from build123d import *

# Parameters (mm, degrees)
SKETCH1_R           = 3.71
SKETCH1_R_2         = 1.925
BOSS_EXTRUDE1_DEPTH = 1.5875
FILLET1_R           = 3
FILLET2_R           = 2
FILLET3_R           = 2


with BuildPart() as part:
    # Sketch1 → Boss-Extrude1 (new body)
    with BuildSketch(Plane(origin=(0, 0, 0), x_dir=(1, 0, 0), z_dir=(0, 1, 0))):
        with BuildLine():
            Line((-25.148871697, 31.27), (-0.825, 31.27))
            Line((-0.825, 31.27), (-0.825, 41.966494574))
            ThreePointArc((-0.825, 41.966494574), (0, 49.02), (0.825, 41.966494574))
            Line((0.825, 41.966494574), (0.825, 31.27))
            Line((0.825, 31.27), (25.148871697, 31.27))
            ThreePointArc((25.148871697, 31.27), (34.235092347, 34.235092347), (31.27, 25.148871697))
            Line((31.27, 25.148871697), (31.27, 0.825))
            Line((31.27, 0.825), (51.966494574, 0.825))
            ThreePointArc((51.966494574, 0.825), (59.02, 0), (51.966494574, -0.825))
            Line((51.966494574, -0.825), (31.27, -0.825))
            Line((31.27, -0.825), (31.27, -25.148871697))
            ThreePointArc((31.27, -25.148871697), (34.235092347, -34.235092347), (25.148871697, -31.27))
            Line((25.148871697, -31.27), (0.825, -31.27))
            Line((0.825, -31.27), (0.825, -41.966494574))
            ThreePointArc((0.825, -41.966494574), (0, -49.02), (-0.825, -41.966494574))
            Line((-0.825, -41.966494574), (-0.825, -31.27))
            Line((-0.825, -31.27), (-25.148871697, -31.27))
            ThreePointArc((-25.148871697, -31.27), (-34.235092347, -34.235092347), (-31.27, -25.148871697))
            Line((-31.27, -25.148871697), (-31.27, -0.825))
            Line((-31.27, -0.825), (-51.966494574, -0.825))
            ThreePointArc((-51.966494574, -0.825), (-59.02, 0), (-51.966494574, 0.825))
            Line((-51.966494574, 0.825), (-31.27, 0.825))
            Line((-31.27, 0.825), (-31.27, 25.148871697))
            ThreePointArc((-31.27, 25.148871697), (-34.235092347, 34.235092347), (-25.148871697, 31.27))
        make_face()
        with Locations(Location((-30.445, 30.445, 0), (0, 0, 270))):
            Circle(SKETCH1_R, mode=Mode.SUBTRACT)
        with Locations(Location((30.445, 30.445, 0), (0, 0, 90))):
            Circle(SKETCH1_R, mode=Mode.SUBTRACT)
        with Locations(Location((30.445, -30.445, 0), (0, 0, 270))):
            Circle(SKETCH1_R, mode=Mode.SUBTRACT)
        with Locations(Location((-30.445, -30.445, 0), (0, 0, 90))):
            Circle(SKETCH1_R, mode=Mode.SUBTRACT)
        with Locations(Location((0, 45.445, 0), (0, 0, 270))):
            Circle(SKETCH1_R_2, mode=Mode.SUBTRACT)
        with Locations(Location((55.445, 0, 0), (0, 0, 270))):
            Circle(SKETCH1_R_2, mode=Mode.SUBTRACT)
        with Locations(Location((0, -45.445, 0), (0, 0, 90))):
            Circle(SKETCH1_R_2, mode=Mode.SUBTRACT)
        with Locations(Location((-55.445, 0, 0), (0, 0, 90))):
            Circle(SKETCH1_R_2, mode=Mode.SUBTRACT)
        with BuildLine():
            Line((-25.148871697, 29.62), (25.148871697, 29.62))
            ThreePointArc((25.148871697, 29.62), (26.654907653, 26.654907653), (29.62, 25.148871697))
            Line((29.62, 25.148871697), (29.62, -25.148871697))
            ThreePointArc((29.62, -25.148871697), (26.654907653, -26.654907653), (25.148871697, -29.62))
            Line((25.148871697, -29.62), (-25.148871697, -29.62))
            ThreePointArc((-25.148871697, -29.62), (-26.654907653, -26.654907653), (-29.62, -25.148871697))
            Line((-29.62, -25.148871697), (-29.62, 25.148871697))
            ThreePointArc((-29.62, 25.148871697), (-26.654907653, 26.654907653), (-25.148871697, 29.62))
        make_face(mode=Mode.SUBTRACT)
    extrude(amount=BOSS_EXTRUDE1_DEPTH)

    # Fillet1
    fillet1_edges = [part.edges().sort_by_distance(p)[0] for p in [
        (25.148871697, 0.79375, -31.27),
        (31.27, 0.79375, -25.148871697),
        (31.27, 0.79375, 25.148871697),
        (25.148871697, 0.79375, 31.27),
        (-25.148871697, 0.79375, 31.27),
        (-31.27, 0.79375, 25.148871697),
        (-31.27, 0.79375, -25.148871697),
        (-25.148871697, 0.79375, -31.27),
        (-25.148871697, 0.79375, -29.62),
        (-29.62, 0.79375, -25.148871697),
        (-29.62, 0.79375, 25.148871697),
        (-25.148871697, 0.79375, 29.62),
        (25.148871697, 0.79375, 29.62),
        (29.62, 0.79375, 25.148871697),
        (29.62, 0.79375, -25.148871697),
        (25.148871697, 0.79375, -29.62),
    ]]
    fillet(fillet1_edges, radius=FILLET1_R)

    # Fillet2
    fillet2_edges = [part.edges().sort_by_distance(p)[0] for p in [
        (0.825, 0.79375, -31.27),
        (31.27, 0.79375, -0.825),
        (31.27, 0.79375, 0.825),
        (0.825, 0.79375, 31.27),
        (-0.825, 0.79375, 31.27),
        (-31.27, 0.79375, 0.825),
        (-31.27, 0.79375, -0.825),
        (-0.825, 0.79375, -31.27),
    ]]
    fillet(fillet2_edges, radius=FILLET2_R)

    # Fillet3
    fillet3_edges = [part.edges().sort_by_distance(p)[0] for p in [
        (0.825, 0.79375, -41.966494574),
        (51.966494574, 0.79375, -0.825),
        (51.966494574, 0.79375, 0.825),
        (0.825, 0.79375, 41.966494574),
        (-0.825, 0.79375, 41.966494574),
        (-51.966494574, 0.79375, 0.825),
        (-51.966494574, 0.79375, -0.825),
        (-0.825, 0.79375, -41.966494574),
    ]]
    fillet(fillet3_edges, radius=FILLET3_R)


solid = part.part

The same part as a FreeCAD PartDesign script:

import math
import FreeCAD as App
import Part
import Sketcher
from FreeCAD import Vector
Q = App.Units.Quantity


def edges_at(feature, points):
    """Names of the edges that pass closest to the given points."""
    edges = feature.Shape.Edges
    near = lambda p: min(range(len(edges)), key=lambda i: edges[i].distToShape(Part.Vertex(*p))[0])
    return sorted({f"Edge{near(p) + 1}" for p in points})

doc = App.newDocument("Part")
body = doc.addObject("PartDesign::Body", "Body")

sketch1 = body.newObject("Sketcher::SketchObject", "Sketch")
sketch1.AttachmentSupport = (doc.getObject("XZ_Plane"), [""])
sketch1.MapMode = "FlatFace"
sketch1.addGeometry(Part.LineSegment(Vector(-0.8, -31.3, 0), Vector(-25.1, -31.3, 0)), False)
sketch1.addGeometry(Part.ArcOfCircle(Part.Circle(Vector(-30.4, -30.4, 0), Vector(0, 0, 1), 5.4), math.radians(99), math.radians(351)), False)
sketch1.addGeometry(Part.LineSegment(Vector(-31.3, -25.1, 0), Vector(-31.3, -0.8, 0)), False)
sketch1.addGeometry(Part.LineSegment(Vector(-31.3, -0.8, 0), Vector(-52, -0.8, 0)), False)
sketch1.addGeometry(Part.ArcOfCircle(Part.Circle(Vector(-55.4, 0, 0), Vector(0, 0, 1), 3.6), math.radians(13), math.radians(347)), False)
sketch1.addGeometry(Part.LineSegment(Vector(-52, 0.8, 0), Vector(-31.3, 0.8, 0)), False)
sketch1.addGeometry(Part.LineSegment(Vector(-31.3, 0.8, 0), Vector(-31.3, 25.1, 0)), False)
sketch1.addGeometry(Part.ArcOfCircle(Part.Circle(Vector(-30.4, 30.4, 0), Vector(0, 0, 1), 5.4), math.radians(9), math.radians(261)), False)
sketch1.addGeometry(Part.LineSegment(Vector(-25.1, 31.3, 0), Vector(-0.8, 31.3, 0)), False)
sketch1.addGeometry(Part.LineSegment(Vector(-0.8, 31.3, 0), Vector(-0.8, 42, 0)), False)
sketch1.addGeometry(Part.ArcOfCircle(Part.Circle(Vector(0, 45.4, 0), Vector(0, 0, 1), 3.6), math.radians(-77), math.radians(257)), False)
sketch1.addGeometry(Part.LineSegment(Vector(0.8, 42, 0), Vector(0.8, 31.3, 0)), False)
sketch1.addGeometry(Part.LineSegment(Vector(0.8, 31.3, 0), Vector(25.1, 31.3, 0)), False)
sketch1.addGeometry(Part.ArcOfCircle(Part.Circle(Vector(30.4, 30.4, 0), Vector(0, 0, 1), 5.4), math.radians(-81), math.radians(171)), False)
sketch1.addGeometry(Part.LineSegment(Vector(31.3, 25.1, 0), Vector(31.3, 0.8, 0)), False)
sketch1.addGeometry(Part.LineSegment(Vector(31.3, 0.8, 0), Vector(52, 0.8, 0)), False)
sketch1.addGeometry(Part.ArcOfCircle(Part.Circle(Vector(55.4, 0, 0), Vector(0, 0, 1), 3.6), math.radians(-167), math.radians(167)), False)
sketch1.addGeometry(Part.LineSegment(Vector(52, -0.8, 0), Vector(31.3, -0.8, 0)), False)
sketch1.addGeometry(Part.LineSegment(Vector(31.3, -0.8, 0), Vector(31.3, -25.1, 0)), False)
sketch1.addGeometry(Part.ArcOfCircle(Part.Circle(Vector(30.4, -30.4, 0), Vector(0, 0, 1), 5.4), math.radians(-171), math.radians(81)), False)
sketch1.addGeometry(Part.LineSegment(Vector(25.1, -31.3, 0), Vector(0.8, -31.3, 0)), False)
sketch1.addGeometry(Part.LineSegment(Vector(0.8, -31.3, 0), Vector(0.8, -42, 0)), False)
sketch1.addGeometry(Part.ArcOfCircle(Part.Circle(Vector(0, -45.4, 0), Vector(0, 0, 1), 3.6), math.radians(103), math.radians(437)), False)
sketch1.addGeometry(Part.LineSegment(Vector(-0.8, -42, 0), Vector(-0.8, -31.3, 0)), False)
sketch1.addGeometry(Part.Circle(Vector(30.4, 30.4, 0), Vector(0, 0, 1), 3.7), False)
sketch1.addGeometry(Part.Circle(Vector(55.4, 0, 0), Vector(0, 0, 1), 1.9), False)
sketch1.addGeometry(Part.Circle(Vector(0, 45.4, 0), Vector(0, 0, 1), 1.9), False)
sketch1.addGeometry(Part.Circle(Vector(-30.4, 30.4, 0), Vector(0, 0, 1), 3.7), False)
sketch1.addGeometry(Part.Circle(Vector(-55.4, 0, 0), Vector(0, 0, 1), 1.9), False)
sketch1.addGeometry(Part.Circle(Vector(30.4, -30.4, 0), Vector(0, 0, 1), 3.7), False)
sketch1.addGeometry(Part.LineSegment(Vector(-25.1, -29.6, 0), Vector(25.1, -29.6, 0)), False)
sketch1.addGeometry(Part.ArcOfCircle(Part.Circle(Vector(30.4, -30.4, 0), Vector(0, 0, 1), 5.4), math.radians(99), math.radians(171)), False)
sketch1.addGeometry(Part.LineSegment(Vector(29.6, -25.1, 0), Vector(29.6, 25.1, 0)), False)
sketch1.addGeometry(Part.ArcOfCircle(Part.Circle(Vector(30.4, 30.4, 0), Vector(0, 0, 1), 5.4), math.radians(-171), math.radians(-99)), False)
sketch1.addGeometry(Part.LineSegment(Vector(25.1, 29.6, 0), Vector(-25.1, 29.6, 0)), False)
sketch1.addGeometry(Part.ArcOfCircle(Part.Circle(Vector(-30.4, 30.4, 0), Vector(0, 0, 1), 5.4), math.radians(-81), math.radians(-9)), False)
sketch1.addGeometry(Part.LineSegment(Vector(-29.6, 25.1, 0), Vector(-29.6, -25.1, 0)), False)
sketch1.addGeometry(Part.ArcOfCircle(Part.Circle(Vector(-30.4, -30.4, 0), Vector(0, 0, 1), 5.4), math.radians(9), math.radians(81)), False)
sketch1.addGeometry(Part.Circle(Vector(0, -45.4, 0), Vector(0, 0, 1), 1.9), False)
sketch1.addGeometry(Part.Circle(Vector(-30.4, -30.4, 0), Vector(0, 0, 1), 3.7), False)
sketch1.addConstraint(Sketcher.Constraint("Coincident", 0, 2, 1, 2))
sketch1.addConstraint(Sketcher.Constraint("Coincident", 1, 1, 2, 1))
sketch1.addConstraint(Sketcher.Constraint("Coincident", 2, 2, 3, 1))
sketch1.addConstraint(Sketcher.Constraint("Coincident", 3, 2, 4, 2))
sketch1.addConstraint(Sketcher.Constraint("Coincident", 4, 1, 5, 1))
sketch1.addConstraint(Sketcher.Constraint("Coincident", 5, 2, 6, 1))
sketch1.addConstraint(Sketcher.Constraint("Coincident", 6, 2, 7, 2))
sketch1.addConstraint(Sketcher.Constraint("Coincident", 7, 1, 8, 1))
sketch1.addConstraint(Sketcher.Constraint("Coincident", 8, 2, 9, 1))
sketch1.addConstraint(Sketcher.Constraint("Coincident", 9, 2, 10, 2))
sketch1.addConstraint(Sketcher.Constraint("Coincident", 10, 1, 11, 1))
sketch1.addConstraint(Sketcher.Constraint("Coincident", 11, 2, 12, 1))
sketch1.addConstraint(Sketcher.Constraint("Coincident", 12, 2, 13, 2))
sketch1.addConstraint(Sketcher.Constraint("Coincident", 13, 1, 14, 1))
sketch1.addConstraint(Sketcher.Constraint("Coincident", 14, 2, 15, 1))
sketch1.addConstraint(Sketcher.Constraint("Coincident", 15, 2, 16, 2))
sketch1.addConstraint(Sketcher.Constraint("Coincident", 16, 1, 17, 1))
sketch1.addConstraint(Sketcher.Constraint("Coincident", 17, 2, 18, 1))
sketch1.addConstraint(Sketcher.Constraint("Coincident", 18, 2, 19, 2))
sketch1.addConstraint(Sketcher.Constraint("Coincident", 19, 1, 20, 1))
sketch1.addConstraint(Sketcher.Constraint("Coincident", 20, 2, 21, 1))
sketch1.addConstraint(Sketcher.Constraint("Coincident", 21, 2, 22, 2))
sketch1.addConstraint(Sketcher.Constraint("Coincident", 22, 1, 23, 1))
sketch1.addConstraint(Sketcher.Constraint("Coincident", 23, 2, 0, 1))
sketch1.addConstraint(Sketcher.Constraint("Coincident", 30, 2, 31, 2))
sketch1.addConstraint(Sketcher.Constraint("Coincident", 31, 1, 32, 1))
sketch1.addConstraint(Sketcher.Constraint("Coincident", 32, 2, 33, 2))
sketch1.addConstraint(Sketcher.Constraint("Coincident", 33, 1, 34, 1))
sketch1.addConstraint(Sketcher.Constraint("Coincident", 34, 2, 35, 2))
sketch1.addConstraint(Sketcher.Constraint("Coincident", 35, 1, 36, 1))
sketch1.addConstraint(Sketcher.Constraint("Coincident", 36, 2, 37, 2))
sketch1.addConstraint(Sketcher.Constraint("Coincident", 37, 1, 30, 1))
sketch1.addConstraint(Sketcher.Constraint("Horizontal", 0))
sketch1.addConstraint(Sketcher.Constraint("Vertical", 2))
sketch1.addConstraint(Sketcher.Constraint("Horizontal", 3))
sketch1.addConstraint(Sketcher.Constraint("Horizontal", 5))
sketch1.addConstraint(Sketcher.Constraint("Vertical", 6))
sketch1.addConstraint(Sketcher.Constraint("Horizontal", 8))
sketch1.addConstraint(Sketcher.Constraint("Vertical", 9))
sketch1.addConstraint(Sketcher.Constraint("Vertical", 11))
sketch1.addConstraint(Sketcher.Constraint("Horizontal", 12))
sketch1.addConstraint(Sketcher.Constraint("Vertical", 14))
sketch1.addConstraint(Sketcher.Constraint("Horizontal", 15))
sketch1.addConstraint(Sketcher.Constraint("Horizontal", 17))
sketch1.addConstraint(Sketcher.Constraint("Vertical", 18))
sketch1.addConstraint(Sketcher.Constraint("Horizontal", 20))
sketch1.addConstraint(Sketcher.Constraint("Vertical", 21))
sketch1.addConstraint(Sketcher.Constraint("Vertical", 23))
sketch1.addConstraint(Sketcher.Constraint("Horizontal", 30))
sketch1.addConstraint(Sketcher.Constraint("Vertical", 32))
sketch1.addConstraint(Sketcher.Constraint("Horizontal", 34))
sketch1.addConstraint(Sketcher.Constraint("Vertical", 36))
sketch1.addConstraint(Sketcher.Constraint("Coincident", 24, 3, 13, 3))
sketch1.addConstraint(Sketcher.Constraint("Coincident", 25, 3, 16, 3))
sketch1.addConstraint(Sketcher.Constraint("Coincident", 26, 3, 10, 3))
sketch1.addConstraint(Sketcher.Constraint("Coincident", 27, 3, 7, 3))
sketch1.addConstraint(Sketcher.Constraint("Coincident", 28, 3, 4, 3))
sketch1.addConstraint(Sketcher.Constraint("Coincident", 29, 3, 19, 3))
sketch1.addConstraint(Sketcher.Constraint("Coincident", 31, 3, 19, 3))
sketch1.addConstraint(Sketcher.Constraint("Coincident", 33, 3, 13, 3))
sketch1.addConstraint(Sketcher.Constraint("Coincident", 35, 3, 7, 3))
sketch1.addConstraint(Sketcher.Constraint("Coincident", 37, 3, 1, 3))
sketch1.addConstraint(Sketcher.Constraint("Coincident", 38, 3, 22, 3))
sketch1.addConstraint(Sketcher.Constraint("Coincident", 39, 3, 1, 3))
sketch1.addConstraint(Sketcher.Constraint("Equal", 1, 7))
sketch1.addConstraint(Sketcher.Constraint("Equal", 4, 10))
sketch1.addConstraint(Sketcher.Constraint("Equal", 7, 13))
sketch1.addConstraint(Sketcher.Constraint("Equal", 10, 16))
sketch1.addConstraint(Sketcher.Constraint("Equal", 13, 19))
sketch1.addConstraint(Sketcher.Constraint("Equal", 16, 22))
sketch1.addConstraint(Sketcher.Constraint("Equal", 25, 26))
sketch1.addConstraint(Sketcher.Constraint("Equal", 24, 27))
sketch1.addConstraint(Sketcher.Constraint("Equal", 26, 28))
sketch1.addConstraint(Sketcher.Constraint("Equal", 27, 29))
sketch1.addConstraint(Sketcher.Constraint("Equal", 19, 31))
sketch1.addConstraint(Sketcher.Constraint("Equal", 31, 33))
sketch1.addConstraint(Sketcher.Constraint("Equal", 33, 35))
sketch1.addConstraint(Sketcher.Constraint("Equal", 35, 37))
sketch1.addConstraint(Sketcher.Constraint("Equal", 28, 38))
sketch1.addConstraint(Sketcher.Constraint("Equal", 29, 39))
sketch1.addConstraint(Sketcher.Constraint("Symmetric", 1, 3, 13, 3, -1, 1))
sketch1.addConstraint(Sketcher.Constraint("Symmetric", 4, 3, 16, 3, -1, 1))
sketch1.addConstraint(Sketcher.Constraint("Symmetric", 7, 3, 19, 3, -1, 1))
sketch1.addConstraint(Sketcher.Constraint("Symmetric", 10, 3, 22, 3, -1, 1))
sketch1.addConstraint(Sketcher.Constraint("Symmetric", 2, 2, 14, 2, -1, 1))
sketch1.addConstraint(Sketcher.Constraint("Symmetric", 5, 2, 17, 2, -1, 1))
sketch1.addConstraint(Sketcher.Constraint("Symmetric", 8, 2, 20, 2, -1, 1))
sketch1.addConstraint(Sketcher.Constraint("Symmetric", 11, 2, 23, 2, -1, 1))
sketch1.addConstraint(Sketcher.Constraint("Symmetric", 7, 3, 13, 3, -2))
sketch1.addConstraint(Sketcher.Constraint("Symmetric", 9, 2, 10, 1, -2))
sketch1.addConstraint(Sketcher.Constraint("Symmetric", 5, 2, 14, 2, -2))
sketch1.addConstraint(Sketcher.Constraint("PointOnObject", 4, 3, -1))
sketch1.addConstraint(Sketcher.Constraint("Horizontal", 8, 2, 11, 2))
sketch1.addConstraint(Sketcher.Constraint("Horizontal", 18, 2, 31, 1))
sketch1.addConstraint(Sketcher.Constraint("Horizontal", 32, 2, 35, 1))
sketch1.addConstraint(Sketcher.Constraint("Vertical", 19, 1, 30, 2))
sketch1.addConstraint(Sketcher.Constraint("Vertical", 30, 2, 33, 1))
sketch1.addConstraint(Sketcher.Constraint("Equal", 20, 2))
sketch1.addConstraint(Sketcher.Constraint("Equal", 34, 32))
sketch1.addConstraint(Sketcher.Constraint("Diameter", 24, Q("7.42 mm")))
sketch1.addConstraint(Sketcher.Constraint("Diameter", 25, Q("3.85 mm")))
sketch1.addConstraint(Sketcher.Constraint("Radius", 1, Q("5.36 mm")))
sketch1.addConstraint(Sketcher.Constraint("Radius", 4, Q("3.575 mm")))
sketch1.addConstraint(Sketcher.Constraint("DistanceX", 4, 3, 1, 3, Q("25 mm")))
sketch1.addConstraint(Sketcher.Constraint("DistanceY", 7, 3, 10, 3, Q("15 mm")))
sketch1.addConstraint(Sketcher.Constraint("DistanceY", 0, 2, -1, 1, Q("31.27 mm")))
sketch1.addConstraint(Sketcher.Constraint("DistanceX", 1, 1, -1, 1, Q("31.27 mm")))
sketch1.addConstraint(Sketcher.Constraint("DistanceY", 30, 2, -1, 1, Q("29.62 mm")))
sketch1.addConstraint(Sketcher.Constraint("DistanceY", 1, 3, 2, 2, Q("29.62 mm")))
pad1 = body.newObject("PartDesign::Pad", "Pad")
pad1.Profile = sketch1
pad1.Length = 1.5875
pad1.Reversed = True
doc.recompute()

fillet = body.newObject("PartDesign::Fillet", "Fillet")
fillet.Base = (pad1, edges_at(pad1, [
    (25.149, 0.794, -31.27),
    (31.27, 0.794, -25.149),
    (31.27, 0.794, 25.149),
    (25.149, 0.794, 31.27),
    (-25.149, 0.794, 31.27),
    (-31.27, 0.794, 25.149),
    (-31.27, 0.794, -25.149),
    (-25.149, 0.794, -31.27),
    (-25.149, 0.794, -29.62),
    (-29.62, 0.794, -25.149),
    (-29.62, 0.794, 25.149),
    (-25.149, 0.794, 29.62),
    (25.149, 0.794, 29.62),
    (29.62, 0.794, 25.149),
    (29.62, 0.794, -25.149),
    (25.149, 0.794, -29.62),
]))
fillet.Radius = 3
doc.recompute()

fillet2 = body.newObject("PartDesign::Fillet", "Fillet001")
fillet2.Base = (fillet, edges_at(fillet, [
    (0.825, 0.794, -31.27),
    (31.27, 0.794, -0.825),
    (31.27, 0.794, 0.825),
    (0.825, 0.794, 31.27),
    (-0.825, 0.794, 31.27),
    (-31.27, 0.794, 0.825),
    (-31.27, 0.794, -0.825),
    (-0.825, 0.794, -31.27),
]))
fillet2.Radius = 2
doc.recompute()

fillet3 = body.newObject("PartDesign::Fillet", "Fillet002")
fillet3.Base = (fillet2, edges_at(fillet2, [
    (0.825, 0.794, -41.966),
    (51.966, 0.794, -0.825),
    (51.966, 0.794, 0.825),
    (0.825, 0.794, 41.966),
    (-0.825, 0.794, 41.966),
    (-51.966, 0.794, 0.825),
    (-51.966, 0.794, -0.825),
    (-0.825, 0.794, -41.966),
]))
fillet3.Radius = 2

doc.recompute()
